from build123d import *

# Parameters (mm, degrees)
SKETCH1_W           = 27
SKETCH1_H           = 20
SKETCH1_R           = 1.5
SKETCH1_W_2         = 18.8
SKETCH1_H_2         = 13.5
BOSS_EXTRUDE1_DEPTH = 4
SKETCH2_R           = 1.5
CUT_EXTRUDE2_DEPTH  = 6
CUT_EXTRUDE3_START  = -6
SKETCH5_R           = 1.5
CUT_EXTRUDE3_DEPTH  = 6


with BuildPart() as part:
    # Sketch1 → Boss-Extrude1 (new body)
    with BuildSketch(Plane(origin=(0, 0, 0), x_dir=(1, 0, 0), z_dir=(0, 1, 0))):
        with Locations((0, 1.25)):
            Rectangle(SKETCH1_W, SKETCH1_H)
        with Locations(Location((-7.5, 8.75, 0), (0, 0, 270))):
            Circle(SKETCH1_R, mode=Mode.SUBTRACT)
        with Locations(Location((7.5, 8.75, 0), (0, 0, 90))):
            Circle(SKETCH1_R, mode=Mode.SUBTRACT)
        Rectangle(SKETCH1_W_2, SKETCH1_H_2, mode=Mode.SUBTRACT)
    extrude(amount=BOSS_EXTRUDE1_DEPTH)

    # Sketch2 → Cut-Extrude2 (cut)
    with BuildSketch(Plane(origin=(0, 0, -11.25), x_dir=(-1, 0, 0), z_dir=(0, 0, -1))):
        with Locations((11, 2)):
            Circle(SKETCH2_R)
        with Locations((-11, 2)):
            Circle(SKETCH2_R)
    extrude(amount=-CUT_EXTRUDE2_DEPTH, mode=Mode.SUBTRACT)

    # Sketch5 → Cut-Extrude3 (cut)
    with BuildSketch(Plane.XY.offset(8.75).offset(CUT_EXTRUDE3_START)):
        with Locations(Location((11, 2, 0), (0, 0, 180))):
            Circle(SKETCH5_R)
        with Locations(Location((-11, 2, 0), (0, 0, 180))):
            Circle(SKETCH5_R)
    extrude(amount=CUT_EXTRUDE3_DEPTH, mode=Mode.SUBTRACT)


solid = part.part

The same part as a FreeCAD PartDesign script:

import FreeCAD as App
import Part
import Sketcher
Q = App.Units.Quantity

doc = App.newDocument("Part")
body = doc.addObject("PartDesign::Body", "Body")

# Sketch on XZ plane
sketch1 = body.newObject("Sketcher::SketchObject", "Sketch")
sketch1.AttachmentSupport = (doc.getObject("XZ_Plane"), [""])
sketch1.MapMode = "FlatFace"
sketch1.addGeometry([
    Part.LineSegment(App.Vector(-13.5, -11.2, 0), App.Vector(-13.5, 8.8, 0)),  # 0
    Part.LineSegment(App.Vector(-13.5, 8.8, 0), App.Vector(13.5, 8.8, 0)),  # 1
    Part.LineSegment(App.Vector(13.5, 8.8, 0), App.Vector(13.5, -11.2, 0)),  # 2
    Part.LineSegment(App.Vector(13.5, -11.2, 0), App.Vector(-13.5, -11.2, 0)),  # 3
    Part.LineSegment(App.Vector(9.4, 6.8, 0), App.Vector(-9.4, 6.8, 0)),  # 4
    Part.LineSegment(App.Vector(-9.4, 6.8, 0), App.Vector(-9.4, -6.8, 0)),  # 5
    Part.LineSegment(App.Vector(-9.4, -6.8, 0), App.Vector(9.4, -6.8, 0)),  # 6
    Part.LineSegment(App.Vector(9.4, -6.8, 0), App.Vector(9.4, 6.8, 0)),  # 7
    Part.Circle(App.Vector(-7.5, -8.8, 0), App.Vector(0, 0, 1), 1.5),  # 8
    Part.Circle(App.Vector(7.5, -8.8, 0), App.Vector(0, 0, 1), 1.5),  # 9
], False)
sketch1.addConstraint([
    Sketcher.Constraint("Coincident", 0, 2, 1, 1),
    Sketcher.Constraint("Coincident", 1, 2, 2, 1),
    Sketcher.Constraint("Coincident", 2, 2, 3, 1),
    Sketcher.Constraint("Coincident", 3, 2, 0, 1),
    Sketcher.Constraint("Coincident", 4, 2, 5, 1),
    Sketcher.Constraint("Coincident", 5, 2, 6, 1),
    Sketcher.Constraint("Coincident", 6, 2, 7, 1),
    Sketcher.Constraint("Coincident", 7, 2, 4, 1),
    Sketcher.Constraint("Vertical", 0),
    Sketcher.Constraint("Horizontal", 1),
    Sketcher.Constraint("Vertical", 2),
    Sketcher.Constraint("Horizontal", 3),
    Sketcher.Constraint("Horizontal", 4),
    Sketcher.Constraint("Vertical", 5),
    Sketcher.Constraint("Horizontal", 6),
    Sketcher.Constraint("Vertical", 7),
    Sketcher.Constraint("Equal", 8, 9),
    Sketcher.Constraint("Symmetric", 4, 2, 6, 2, -1, 1),
    Sketcher.Constraint("Symmetric", 8, 3, 9, 3, -2),
    Sketcher.Constraint("Diameter", 8, Q("3 mm")),
    Sketcher.Constraint("DistanceX", 1, 1, 1, 2, Q("27 mm")),
    Sketcher.Constraint("DistanceY", 0, 1, 0, 2, Q("20 mm")),
    Sketcher.Constraint("DistanceX", 4, 2, 4, 1, Q("18.8 mm")),
    Sketcher.Constraint("DistanceY", 5, 2, 5, 1, Q("13.5 mm")),
    Sketcher.Constraint("DistanceX", 8, 3, 9, 3, Q("15 mm")),
    Sketcher.Constraint("DistanceX", 0, 2, 8, 3, Q("6 mm")),
    Sketcher.Constraint("DistanceY", 4, 2, 0, 2, Q("2 mm")),
    Sketcher.Constraint("DistanceY", 8, 3, 5, 2, Q("2 mm")),
])
pad1 = body.newObject("PartDesign::Pad", "Pad")
pad1.Profile = sketch1
pad1.Length = 4
pad1.Reversed = True

# Sketch on XY plane
sketch2 = body.newObject("Sketcher::SketchObject", "Sketch001")
sketch2.AttachmentSupport = (doc.getObject("XY_Plane"), [""])
sketch2.MapMode = "FlatFace"
sketch2.AttachmentOffset = App.Placement(App.Vector(0, 0, -11.25), App.Rotation())
sketch2.addGeometry([
    Part.Circle(App.Vector(-11, 2, 0), App.Vector(0, 0, 1), 1.5),
    Part.Circle(App.Vector(11, 2, 0), App.Vector(0, 0, 1), 1.5),
], False)
sketch2.addConstraint([
    Sketcher.Constraint("Equal", 0, 1),
    Sketcher.Constraint("Symmetric", 0, 3, 1, 3, -2),
    Sketcher.Constraint("Diameter", 0, Q("3 mm")),
    Sketcher.Constraint("DistanceX", 0, 3, -1, 1, Q("11 mm")),
    Sketcher.Constraint("DistanceY", -1, 1, 0, 3, Q("2 mm")),
])
pocket1 = body.newObject("PartDesign::Pocket", "Pocket")
pocket1.Profile = sketch2
pocket1.Length = 6
pocket1.Reversed = True

# Sketch on XY plane
sketch3 = body.newObject("Sketcher::SketchObject", "Sketch002")
sketch3.AttachmentSupport = (doc.getObject("XY_Plane"), [""])
sketch3.MapMode = "FlatFace"
sketch3.AttachmentOffset = App.Placement(App.Vector(0, 0, 2.75), App.Rotation())
sketch3.addGeometry([
    Part.Circle(App.Vector(11, 2, 0), App.Vector(0, 0, 1), 1.5),
    Part.Circle(App.Vector(-11, 2, 0), App.Vector(0, 0, 1), 1.5),
], False)
sketch3.addConstraint([
    Sketcher.Constraint("Equal", 0, 1),
    Sketcher.Constraint("Symmetric", 0, 3, 1, 3, -2),
    Sketcher.Constraint("Diameter", 0, Q("3 mm")),
    Sketcher.Constraint("DistanceX", -1, 1, 0, 3, Q("11 mm")),
    Sketcher.Constraint("DistanceY", -1, 1, 0, 3, Q("2 mm")),
])
pocket2 = body.newObject("PartDesign::Pocket", "Pocket001")
pocket2.Profile = sketch3
pocket2.Length = 6
pocket2.Reversed = True

doc.recompute()
